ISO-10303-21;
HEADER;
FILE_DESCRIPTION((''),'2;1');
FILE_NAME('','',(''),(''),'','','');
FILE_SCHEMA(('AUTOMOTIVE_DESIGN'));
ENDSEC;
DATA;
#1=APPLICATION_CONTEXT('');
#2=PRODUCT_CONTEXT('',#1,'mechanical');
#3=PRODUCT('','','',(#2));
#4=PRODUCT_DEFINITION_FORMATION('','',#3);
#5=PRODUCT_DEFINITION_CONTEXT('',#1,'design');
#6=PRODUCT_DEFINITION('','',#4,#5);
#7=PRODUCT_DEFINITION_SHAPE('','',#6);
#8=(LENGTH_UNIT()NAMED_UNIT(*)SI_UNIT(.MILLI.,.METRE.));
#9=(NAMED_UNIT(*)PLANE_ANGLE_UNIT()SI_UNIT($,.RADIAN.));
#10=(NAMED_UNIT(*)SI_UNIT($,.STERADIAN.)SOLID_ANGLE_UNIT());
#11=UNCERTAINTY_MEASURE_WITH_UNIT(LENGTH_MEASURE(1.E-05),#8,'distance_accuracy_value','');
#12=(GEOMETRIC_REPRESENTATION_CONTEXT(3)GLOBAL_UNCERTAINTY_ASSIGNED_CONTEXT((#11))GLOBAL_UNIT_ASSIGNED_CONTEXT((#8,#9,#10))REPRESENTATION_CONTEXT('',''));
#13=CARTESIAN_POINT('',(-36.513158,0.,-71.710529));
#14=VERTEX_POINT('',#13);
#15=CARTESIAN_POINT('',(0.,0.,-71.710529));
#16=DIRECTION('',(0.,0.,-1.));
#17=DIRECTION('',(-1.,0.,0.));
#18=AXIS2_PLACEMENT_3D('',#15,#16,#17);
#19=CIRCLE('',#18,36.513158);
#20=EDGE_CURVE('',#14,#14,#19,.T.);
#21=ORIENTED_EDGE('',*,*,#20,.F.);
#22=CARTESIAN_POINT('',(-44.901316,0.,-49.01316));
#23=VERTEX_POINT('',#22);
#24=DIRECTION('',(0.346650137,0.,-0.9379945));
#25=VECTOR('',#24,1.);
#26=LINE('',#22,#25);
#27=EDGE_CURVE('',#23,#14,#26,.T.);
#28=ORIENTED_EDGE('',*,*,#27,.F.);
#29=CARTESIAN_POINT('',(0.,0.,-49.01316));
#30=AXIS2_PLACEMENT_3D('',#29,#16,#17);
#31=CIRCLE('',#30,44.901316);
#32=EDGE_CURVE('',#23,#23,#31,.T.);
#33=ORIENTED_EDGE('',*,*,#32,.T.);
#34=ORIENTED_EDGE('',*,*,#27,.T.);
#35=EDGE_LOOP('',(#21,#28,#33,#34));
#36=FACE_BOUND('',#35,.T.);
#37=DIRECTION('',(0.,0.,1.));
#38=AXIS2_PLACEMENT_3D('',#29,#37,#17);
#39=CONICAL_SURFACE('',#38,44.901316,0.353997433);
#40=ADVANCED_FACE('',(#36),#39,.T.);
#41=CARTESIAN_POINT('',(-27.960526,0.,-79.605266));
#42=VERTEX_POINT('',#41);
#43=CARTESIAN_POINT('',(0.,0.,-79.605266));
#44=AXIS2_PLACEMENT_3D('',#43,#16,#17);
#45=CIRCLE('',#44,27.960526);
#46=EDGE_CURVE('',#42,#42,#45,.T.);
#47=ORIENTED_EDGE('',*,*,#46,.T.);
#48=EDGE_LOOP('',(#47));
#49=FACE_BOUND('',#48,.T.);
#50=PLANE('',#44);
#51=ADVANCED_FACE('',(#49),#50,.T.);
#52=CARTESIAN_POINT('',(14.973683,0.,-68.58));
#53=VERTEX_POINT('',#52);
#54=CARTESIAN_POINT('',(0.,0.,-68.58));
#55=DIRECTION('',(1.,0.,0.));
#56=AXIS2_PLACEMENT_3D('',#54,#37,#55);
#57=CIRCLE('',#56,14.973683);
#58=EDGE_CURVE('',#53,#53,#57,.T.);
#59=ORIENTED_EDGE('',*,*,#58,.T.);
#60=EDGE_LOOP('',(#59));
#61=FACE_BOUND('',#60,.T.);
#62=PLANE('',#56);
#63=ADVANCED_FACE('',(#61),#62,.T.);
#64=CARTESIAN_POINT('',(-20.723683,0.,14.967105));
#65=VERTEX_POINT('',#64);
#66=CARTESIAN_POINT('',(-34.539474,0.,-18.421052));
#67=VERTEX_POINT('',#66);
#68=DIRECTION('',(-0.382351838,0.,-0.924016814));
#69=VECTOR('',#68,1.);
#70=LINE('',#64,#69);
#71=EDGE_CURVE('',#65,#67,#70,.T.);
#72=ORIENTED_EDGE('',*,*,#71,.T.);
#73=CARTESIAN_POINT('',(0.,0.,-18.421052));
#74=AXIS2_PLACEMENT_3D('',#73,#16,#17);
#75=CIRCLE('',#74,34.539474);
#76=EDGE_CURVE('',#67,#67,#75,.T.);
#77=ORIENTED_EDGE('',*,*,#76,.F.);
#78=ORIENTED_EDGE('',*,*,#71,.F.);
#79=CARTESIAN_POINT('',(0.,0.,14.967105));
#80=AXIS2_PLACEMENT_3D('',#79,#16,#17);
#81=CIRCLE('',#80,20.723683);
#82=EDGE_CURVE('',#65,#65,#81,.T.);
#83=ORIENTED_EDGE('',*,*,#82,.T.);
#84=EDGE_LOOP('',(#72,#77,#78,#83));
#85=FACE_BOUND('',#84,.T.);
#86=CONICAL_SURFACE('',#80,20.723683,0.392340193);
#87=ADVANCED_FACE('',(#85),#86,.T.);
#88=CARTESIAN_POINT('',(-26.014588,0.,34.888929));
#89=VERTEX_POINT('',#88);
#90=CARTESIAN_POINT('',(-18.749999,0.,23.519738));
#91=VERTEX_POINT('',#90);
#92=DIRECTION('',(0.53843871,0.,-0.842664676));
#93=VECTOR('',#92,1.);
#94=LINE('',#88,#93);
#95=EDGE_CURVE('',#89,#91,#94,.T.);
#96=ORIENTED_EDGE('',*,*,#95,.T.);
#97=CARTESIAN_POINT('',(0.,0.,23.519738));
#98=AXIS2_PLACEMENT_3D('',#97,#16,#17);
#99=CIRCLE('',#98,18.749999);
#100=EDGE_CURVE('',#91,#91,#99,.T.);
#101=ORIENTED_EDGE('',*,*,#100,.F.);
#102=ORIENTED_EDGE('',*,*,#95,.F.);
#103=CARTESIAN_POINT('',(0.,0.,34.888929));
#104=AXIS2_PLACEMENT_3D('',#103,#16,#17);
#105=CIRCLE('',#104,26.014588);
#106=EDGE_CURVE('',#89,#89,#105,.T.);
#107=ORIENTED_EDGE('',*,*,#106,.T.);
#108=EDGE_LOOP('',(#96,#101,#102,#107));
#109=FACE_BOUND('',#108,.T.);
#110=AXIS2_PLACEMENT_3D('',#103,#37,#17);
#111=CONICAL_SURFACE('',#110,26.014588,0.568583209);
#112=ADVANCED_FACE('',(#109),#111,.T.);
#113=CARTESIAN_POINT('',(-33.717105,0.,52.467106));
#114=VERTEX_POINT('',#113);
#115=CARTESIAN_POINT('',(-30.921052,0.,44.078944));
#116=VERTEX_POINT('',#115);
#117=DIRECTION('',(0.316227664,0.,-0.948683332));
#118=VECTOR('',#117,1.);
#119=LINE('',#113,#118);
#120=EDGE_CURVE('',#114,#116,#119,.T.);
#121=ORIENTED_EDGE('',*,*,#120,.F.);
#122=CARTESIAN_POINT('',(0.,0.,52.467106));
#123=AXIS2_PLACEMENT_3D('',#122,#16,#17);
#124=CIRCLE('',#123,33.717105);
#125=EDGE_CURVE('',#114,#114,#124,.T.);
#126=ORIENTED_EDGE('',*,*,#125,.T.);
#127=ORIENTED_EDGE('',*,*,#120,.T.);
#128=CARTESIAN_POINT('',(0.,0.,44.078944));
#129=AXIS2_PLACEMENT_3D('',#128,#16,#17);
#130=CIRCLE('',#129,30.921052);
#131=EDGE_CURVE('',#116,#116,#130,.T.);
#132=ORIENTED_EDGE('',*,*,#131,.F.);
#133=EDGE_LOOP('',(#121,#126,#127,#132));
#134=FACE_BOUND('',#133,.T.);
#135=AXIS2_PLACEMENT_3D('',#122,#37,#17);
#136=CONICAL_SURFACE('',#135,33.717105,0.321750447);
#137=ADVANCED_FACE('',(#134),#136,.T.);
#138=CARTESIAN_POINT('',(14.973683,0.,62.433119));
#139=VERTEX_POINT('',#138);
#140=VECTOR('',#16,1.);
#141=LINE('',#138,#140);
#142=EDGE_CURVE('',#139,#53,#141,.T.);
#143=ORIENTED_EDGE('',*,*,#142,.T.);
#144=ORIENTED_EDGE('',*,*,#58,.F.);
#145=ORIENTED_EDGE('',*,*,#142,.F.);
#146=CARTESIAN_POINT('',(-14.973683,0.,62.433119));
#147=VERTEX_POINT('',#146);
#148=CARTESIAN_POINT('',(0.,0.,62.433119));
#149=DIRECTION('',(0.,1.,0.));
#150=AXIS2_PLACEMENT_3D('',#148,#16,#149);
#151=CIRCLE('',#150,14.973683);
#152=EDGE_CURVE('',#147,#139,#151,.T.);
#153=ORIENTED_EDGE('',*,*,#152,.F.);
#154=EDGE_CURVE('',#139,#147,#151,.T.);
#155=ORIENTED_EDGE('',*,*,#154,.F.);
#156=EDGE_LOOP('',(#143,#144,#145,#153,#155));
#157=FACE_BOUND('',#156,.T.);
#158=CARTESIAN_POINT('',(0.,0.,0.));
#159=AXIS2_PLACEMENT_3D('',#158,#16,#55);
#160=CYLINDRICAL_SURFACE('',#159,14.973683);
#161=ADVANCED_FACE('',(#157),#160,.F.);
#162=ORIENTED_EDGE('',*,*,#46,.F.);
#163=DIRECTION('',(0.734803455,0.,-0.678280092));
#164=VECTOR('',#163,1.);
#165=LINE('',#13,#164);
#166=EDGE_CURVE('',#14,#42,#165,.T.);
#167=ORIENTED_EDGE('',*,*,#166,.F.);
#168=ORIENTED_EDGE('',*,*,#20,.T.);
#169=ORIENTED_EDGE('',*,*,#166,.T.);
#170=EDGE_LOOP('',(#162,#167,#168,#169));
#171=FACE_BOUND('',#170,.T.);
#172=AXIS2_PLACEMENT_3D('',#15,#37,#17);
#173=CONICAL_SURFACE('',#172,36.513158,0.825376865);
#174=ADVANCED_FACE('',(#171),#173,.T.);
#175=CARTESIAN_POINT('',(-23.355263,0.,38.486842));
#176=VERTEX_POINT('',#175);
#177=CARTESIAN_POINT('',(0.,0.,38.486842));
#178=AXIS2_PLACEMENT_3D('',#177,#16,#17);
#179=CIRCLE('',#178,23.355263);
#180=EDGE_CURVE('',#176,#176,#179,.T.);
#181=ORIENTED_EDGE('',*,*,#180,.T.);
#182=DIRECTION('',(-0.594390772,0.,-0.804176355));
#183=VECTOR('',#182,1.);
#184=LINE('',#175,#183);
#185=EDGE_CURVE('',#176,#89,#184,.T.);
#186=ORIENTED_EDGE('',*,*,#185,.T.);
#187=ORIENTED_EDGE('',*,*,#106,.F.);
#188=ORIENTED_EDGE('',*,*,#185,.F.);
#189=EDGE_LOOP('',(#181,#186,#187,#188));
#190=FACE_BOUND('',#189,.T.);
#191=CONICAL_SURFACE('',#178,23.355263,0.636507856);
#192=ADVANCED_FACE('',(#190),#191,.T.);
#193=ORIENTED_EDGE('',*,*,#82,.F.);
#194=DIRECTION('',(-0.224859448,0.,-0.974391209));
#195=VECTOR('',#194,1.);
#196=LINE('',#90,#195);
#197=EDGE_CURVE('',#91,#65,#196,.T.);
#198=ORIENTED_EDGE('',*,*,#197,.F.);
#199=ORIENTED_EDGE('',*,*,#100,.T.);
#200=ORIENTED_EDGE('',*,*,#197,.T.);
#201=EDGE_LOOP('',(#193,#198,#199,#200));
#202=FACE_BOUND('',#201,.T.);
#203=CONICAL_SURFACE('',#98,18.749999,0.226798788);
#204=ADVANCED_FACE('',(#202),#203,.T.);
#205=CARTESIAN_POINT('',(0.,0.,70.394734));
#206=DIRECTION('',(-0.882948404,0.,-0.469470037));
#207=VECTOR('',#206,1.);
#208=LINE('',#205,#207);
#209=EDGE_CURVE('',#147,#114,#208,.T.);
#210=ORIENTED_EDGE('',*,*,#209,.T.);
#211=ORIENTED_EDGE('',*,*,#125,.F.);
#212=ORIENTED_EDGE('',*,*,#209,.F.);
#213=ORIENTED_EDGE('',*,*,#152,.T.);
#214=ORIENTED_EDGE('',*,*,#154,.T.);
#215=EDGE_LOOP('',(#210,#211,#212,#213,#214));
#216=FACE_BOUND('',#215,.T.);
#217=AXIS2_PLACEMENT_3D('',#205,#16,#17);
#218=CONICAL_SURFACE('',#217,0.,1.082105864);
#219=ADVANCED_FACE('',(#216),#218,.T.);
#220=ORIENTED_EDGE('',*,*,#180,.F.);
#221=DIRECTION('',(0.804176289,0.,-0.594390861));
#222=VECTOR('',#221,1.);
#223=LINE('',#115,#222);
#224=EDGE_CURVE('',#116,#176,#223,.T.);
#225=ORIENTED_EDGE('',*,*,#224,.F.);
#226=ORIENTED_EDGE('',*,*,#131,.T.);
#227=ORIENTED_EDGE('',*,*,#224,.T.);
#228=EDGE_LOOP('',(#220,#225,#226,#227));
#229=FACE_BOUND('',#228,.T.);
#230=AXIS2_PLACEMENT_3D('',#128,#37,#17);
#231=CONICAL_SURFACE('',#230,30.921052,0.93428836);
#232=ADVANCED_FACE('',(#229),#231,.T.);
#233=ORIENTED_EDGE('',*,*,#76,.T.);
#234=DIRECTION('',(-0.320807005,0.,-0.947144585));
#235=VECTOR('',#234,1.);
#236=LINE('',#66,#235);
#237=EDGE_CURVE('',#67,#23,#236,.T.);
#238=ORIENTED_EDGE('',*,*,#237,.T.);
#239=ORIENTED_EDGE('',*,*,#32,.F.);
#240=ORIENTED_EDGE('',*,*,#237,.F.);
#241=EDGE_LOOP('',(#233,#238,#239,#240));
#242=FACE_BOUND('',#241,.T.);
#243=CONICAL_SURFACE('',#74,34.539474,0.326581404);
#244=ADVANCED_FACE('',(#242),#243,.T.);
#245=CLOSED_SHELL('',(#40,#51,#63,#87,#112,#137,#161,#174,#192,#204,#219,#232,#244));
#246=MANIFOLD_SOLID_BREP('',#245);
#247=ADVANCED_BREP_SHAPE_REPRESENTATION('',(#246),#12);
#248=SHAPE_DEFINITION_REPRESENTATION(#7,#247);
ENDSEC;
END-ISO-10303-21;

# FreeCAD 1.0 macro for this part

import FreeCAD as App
import Part
import Sketcher
from FreeCAD import Vector
Q = App.Units.Quantity


def add_polygon(sketch, points):
    """Adds a closed chain of lines whose ends are joined by coincident constraints."""
    first, n = sketch.GeometryCount, len(points)
    for a, b in zip(points, points[1:] + points[:1]):
        sketch.addGeometry(Part.LineSegment(App.Vector(*a, 0), App.Vector(*b, 0)), False)
    for i in range(n):
        sketch.addConstraint(Sketcher.Constraint("Coincident", first + i, 2, first + (i + 1) % n, 1))

doc = App.newDocument("Part")
body = doc.addObject("PartDesign::Body", "Body")

sketch1 = body.newObject("Sketcher::SketchObject", "Sketch")
sketch1.AttachmentSupport = (doc.getObject("XZ_Plane"), [""])
sketch1.MapMode = "FlatFace"
add_polygon(sketch1, [(0, -79.6), (0, 70.4), (-33.7, 52.5), (-30.9, 44.1), (-23.4, 38.5), (-26, 34.9), (-18.7, 23.5), (-20.7, 15), (-34.5, -18.4), (-44.9, -49), (-36.5, -71.7), (-28, -79.6)])
sketch1.addConstraint(Sketcher.Constraint("Vertical", 0))
sketch1.addConstraint(Sketcher.Constraint("Horizontal", 11))
sketch1.addConstraint(Sketcher.Constraint("PointOnObject", 0, 2, -2))
sketch1.addConstraint(Sketcher.Constraint("Perpendicular", 3, 4))
sketch1.addConstraint(Sketcher.Constraint("DistanceY", 0, 1, 0, 2, 150.0))
sketch1.addConstraint(Sketcher.Constraint("Distance", 2, 8.841899))
sketch1.addConstraint(Sketcher.Constraint("Distance", 8, 32.299301))
sketch1.addConstraint(Sketcher.Constraint("DistanceX", 5, 2, -1, 1, 18.749999))
sketch1.addConstraint(Sketcher.Constraint("DistanceY", 3, 2, 2, 2, 5.592102))
sketch1.addConstraint(Sketcher.Constraint("DistanceY", 6, 2, 1, 2, 37.500001))
sketch1.addConstraint(Sketcher.Constraint("DistanceY", 8, 2, 5, 2, 72.532898))
sketch1.addConstraint(Sketcher.Constraint("DistanceY", 8, 2, 3, 2, 87.500002))
sketch1.addConstraint(Sketcher.Constraint("Distance", 1, 38.186948))
sketch1.addConstraint(Sketcher.Constraint("Distance", 5, 13.491952))
sketch1.addConstraint(Sketcher.Constraint("Distance", 6, 8.777412))
sketch1.addConstraint(Sketcher.Constraint("Distance", 7, 36.133712))
sketch1.addConstraint(Sketcher.Constraint("DistanceX", 11, 1, 11, 2, 27.960526))
sketch1.addConstraint(Sketcher.Constraint("DistanceX", 2, 2, -1, 1, 30.921052))
sketch1.addConstraint(Sketcher.Constraint("DistanceX", 4, 2, -1, 1, 26.014588))
sketch1.addConstraint(Sketcher.Constraint("DistanceY", -1, 1, 4, 2, 34.888929))
sketch1.addConstraint(Sketcher.Constraint("DistanceY", 7, 2, -1, 1, 18.421052))
sketch1.addConstraint(Sketcher.Constraint("DistanceY", 9, 2, -1, 1, 71.710529))
sketch1.addConstraint(Sketcher.Constraint("DistanceY", 2, 2, 0, 2, 26.31579))
sketch1.addConstraint(Sketcher.Constraint("DistanceX", 8, 2, 9, 2, 8.388158))
revolution = body.newObject("PartDesign::Revolution", "Revolution")
revolution.Profile = sketch1
revolution.ReferenceAxis = (sketch1, ["V_Axis"])
revolution.Angle = 360

sketch2 = body.newObject("Sketcher::SketchObject", "Sketch001")
sketch2.AttachmentSupport = (doc.getObject("XY_Plane"), [""])
sketch2.MapMode = "FlatFace"
sketch2.addGeometry(Part.Circle(Vector(0, 0, 0), Vector(0, 0, 1), 15), False)
sketch2.addConstraint(Sketcher.Constraint("Coincident", 0, 3, -1, 1))
sketch2.addConstraint(Sketcher.Constraint("Diameter", 0, 29.947366))
pocket1 = body.newObject("PartDesign::Pocket", "Pocket")
pocket1.Profile = sketch2
pocket1.Length = Q("3.48 in")
pocket1.Reversed = True

sketch3 = body.newObject("Sketcher::SketchObject", "Sketch002")
sketch3.AttachmentSupport = (doc.getObject("XY_Plane"), [""])
sketch3.MapMode = "FlatFace"
sketch3.addGeometry(Part.Circle(Vector(0, 0, 0), Vector(0, 0, 1), 15), False)
sketch3.addConstraint(Sketcher.Constraint("Coincident", 0, 3, -1, 1))
sketch3.addConstraint(Sketcher.Constraint("Diameter", 0, 29.947366))
pocket2 = body.newObject("PartDesign::Pocket", "Pocket001")
pocket2.Profile = sketch3
pocket2.Length = Q("2.7 in")

doc.recompute()
